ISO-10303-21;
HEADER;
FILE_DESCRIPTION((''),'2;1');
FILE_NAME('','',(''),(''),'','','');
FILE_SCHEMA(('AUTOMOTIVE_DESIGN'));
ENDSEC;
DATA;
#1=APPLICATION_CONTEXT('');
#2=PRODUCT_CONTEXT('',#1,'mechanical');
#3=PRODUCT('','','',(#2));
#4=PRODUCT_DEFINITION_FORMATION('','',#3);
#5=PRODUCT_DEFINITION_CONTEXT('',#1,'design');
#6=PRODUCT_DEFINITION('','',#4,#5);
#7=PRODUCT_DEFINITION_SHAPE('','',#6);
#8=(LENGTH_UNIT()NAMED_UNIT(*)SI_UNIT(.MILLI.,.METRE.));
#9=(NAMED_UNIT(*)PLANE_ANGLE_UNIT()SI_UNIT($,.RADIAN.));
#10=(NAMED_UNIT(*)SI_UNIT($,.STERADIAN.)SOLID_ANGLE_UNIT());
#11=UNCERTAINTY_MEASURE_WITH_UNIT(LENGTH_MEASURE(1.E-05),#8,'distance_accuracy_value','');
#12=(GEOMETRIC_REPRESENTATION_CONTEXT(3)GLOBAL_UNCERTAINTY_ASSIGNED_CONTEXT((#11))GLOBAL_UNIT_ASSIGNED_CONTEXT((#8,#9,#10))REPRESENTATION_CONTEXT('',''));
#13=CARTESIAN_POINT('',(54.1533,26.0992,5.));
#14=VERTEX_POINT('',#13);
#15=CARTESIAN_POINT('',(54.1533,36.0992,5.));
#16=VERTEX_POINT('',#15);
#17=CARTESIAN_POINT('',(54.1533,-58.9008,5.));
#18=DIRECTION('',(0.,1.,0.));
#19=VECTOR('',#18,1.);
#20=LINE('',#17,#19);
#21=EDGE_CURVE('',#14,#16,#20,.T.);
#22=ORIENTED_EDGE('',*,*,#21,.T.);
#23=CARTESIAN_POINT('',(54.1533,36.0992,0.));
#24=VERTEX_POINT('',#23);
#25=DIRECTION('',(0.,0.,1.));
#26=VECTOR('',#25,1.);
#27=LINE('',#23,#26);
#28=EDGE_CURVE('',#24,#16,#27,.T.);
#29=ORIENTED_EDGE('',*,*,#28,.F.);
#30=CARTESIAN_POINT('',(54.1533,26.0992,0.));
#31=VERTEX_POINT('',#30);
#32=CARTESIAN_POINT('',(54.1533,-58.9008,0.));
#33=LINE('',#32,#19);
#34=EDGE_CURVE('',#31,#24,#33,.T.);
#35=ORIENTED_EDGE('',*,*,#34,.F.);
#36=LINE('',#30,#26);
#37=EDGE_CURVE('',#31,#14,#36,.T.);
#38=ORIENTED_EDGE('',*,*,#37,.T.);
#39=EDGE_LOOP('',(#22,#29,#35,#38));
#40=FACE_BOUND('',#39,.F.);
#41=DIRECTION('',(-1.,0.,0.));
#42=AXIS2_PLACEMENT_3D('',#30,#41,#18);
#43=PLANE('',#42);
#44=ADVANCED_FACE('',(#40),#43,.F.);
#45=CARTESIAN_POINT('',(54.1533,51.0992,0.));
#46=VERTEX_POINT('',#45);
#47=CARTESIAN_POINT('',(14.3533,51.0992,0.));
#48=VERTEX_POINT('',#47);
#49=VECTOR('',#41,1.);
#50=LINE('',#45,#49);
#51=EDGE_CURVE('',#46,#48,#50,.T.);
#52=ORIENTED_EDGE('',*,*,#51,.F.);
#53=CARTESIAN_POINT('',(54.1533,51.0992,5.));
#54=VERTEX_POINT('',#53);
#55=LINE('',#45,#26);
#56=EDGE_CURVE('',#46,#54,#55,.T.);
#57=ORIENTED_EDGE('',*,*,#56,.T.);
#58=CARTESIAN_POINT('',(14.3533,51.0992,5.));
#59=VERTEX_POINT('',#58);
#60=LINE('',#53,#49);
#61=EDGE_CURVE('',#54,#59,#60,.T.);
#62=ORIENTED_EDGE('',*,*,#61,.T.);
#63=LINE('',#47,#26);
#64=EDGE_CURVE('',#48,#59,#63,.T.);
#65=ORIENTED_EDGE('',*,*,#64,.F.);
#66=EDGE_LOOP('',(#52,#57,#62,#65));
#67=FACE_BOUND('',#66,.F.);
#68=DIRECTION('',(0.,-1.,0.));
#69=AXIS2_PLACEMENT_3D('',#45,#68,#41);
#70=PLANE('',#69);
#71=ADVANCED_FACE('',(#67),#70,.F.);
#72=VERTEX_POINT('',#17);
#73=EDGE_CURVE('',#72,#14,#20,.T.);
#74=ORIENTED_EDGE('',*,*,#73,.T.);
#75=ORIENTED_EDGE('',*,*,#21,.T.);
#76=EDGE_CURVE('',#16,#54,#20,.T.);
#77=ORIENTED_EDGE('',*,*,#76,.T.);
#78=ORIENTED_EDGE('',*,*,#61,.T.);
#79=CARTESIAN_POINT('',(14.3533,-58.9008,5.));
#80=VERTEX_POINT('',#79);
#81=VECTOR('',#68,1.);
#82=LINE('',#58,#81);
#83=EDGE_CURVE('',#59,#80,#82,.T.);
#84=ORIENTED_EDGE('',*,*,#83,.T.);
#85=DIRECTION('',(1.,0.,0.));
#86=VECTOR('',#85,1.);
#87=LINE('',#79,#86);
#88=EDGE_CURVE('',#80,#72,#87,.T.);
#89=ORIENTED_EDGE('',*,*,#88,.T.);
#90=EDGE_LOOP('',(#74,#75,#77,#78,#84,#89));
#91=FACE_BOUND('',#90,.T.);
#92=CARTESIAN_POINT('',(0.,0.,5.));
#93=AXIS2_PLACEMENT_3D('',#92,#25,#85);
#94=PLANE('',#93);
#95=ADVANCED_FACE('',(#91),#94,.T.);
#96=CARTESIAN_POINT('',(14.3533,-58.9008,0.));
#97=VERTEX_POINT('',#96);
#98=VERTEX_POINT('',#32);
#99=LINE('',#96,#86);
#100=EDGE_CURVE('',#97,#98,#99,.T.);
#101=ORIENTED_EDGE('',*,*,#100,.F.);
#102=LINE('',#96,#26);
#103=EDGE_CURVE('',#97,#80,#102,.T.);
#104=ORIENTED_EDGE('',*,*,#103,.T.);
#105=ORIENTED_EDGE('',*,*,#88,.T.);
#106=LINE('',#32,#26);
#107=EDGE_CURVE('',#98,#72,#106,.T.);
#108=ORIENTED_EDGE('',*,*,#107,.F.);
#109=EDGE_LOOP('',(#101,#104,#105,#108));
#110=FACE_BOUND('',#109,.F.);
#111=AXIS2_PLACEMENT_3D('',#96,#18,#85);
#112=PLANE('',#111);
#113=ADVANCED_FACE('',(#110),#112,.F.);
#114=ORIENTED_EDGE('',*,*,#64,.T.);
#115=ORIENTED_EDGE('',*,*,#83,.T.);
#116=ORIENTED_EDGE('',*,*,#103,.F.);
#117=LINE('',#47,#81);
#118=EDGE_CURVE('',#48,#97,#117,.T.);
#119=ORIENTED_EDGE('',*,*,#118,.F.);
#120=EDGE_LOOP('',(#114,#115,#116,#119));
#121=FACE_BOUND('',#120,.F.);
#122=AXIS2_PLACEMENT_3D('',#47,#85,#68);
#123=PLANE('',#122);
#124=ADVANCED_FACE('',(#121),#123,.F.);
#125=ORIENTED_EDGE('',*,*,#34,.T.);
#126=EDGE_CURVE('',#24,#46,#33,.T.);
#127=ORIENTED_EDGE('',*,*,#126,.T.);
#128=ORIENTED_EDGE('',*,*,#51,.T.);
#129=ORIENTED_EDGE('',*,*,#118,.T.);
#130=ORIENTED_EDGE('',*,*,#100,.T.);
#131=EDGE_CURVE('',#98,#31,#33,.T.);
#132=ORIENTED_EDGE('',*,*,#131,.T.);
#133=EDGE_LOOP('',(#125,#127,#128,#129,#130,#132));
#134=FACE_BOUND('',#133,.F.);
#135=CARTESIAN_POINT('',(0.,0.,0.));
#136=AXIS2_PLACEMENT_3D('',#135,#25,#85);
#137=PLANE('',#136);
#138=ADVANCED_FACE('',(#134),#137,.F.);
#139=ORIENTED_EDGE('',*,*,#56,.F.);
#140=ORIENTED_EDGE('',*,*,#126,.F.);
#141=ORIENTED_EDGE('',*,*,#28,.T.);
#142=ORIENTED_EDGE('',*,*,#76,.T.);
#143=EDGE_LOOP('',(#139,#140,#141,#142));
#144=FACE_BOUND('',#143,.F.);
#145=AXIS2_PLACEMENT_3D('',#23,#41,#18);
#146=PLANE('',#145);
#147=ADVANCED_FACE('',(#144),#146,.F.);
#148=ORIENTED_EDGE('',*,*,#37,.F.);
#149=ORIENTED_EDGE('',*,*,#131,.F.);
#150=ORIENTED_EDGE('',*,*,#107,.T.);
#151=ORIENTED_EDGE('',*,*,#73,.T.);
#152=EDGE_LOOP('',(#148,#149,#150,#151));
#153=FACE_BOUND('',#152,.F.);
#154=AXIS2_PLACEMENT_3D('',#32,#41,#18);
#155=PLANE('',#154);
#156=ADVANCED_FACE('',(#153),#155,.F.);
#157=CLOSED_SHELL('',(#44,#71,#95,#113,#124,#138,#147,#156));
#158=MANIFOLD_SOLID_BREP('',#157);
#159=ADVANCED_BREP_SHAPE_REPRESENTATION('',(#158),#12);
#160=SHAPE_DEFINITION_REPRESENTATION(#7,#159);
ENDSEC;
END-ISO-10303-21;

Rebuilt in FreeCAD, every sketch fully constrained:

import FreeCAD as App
import Part
import Sketcher
from FreeCAD import Vector

doc = App.newDocument("Part")
body = doc.addObject("PartDesign::Body", "Body")

sketch1 = body.newObject("Sketcher::SketchObject", "Sketch")
sketch1.AttachmentSupport = (doc.getObject("XY_Plane"), [""])
sketch1.MapMode = "FlatFace"
sketch1.addGeometry(Part.LineSegment(Vector(14, 51, 0), Vector(14, -59, 0)), False)
sketch1.addGeometry(Part.LineSegment(Vector(14, -59, 0), Vector(54, -59, 0)), False)
sketch1.addGeometry(Part.LineSegment(Vector(54, -59, 0), Vector(54, 51, 0)), False)
sketch1.addGeometry(Part.LineSegment(Vector(54, 51, 0), Vector(14, 51, 0)), False)
sketch1.addConstraint(Sketcher.Constraint("Coincident", 0, 2, 1, 1))
sketch1.addConstraint(Sketcher.Constraint("Coincident", 1, 2, 2, 1))
sketch1.addConstraint(Sketcher.Constraint("Coincident", 2, 2, 3, 1))
sketch1.addConstraint(Sketcher.Constraint("Coincident", 3, 2, 0, 1))
sketch1.addConstraint(Sketcher.Constraint("Vertical", 0))
sketch1.addConstraint(Sketcher.Constraint("Horizontal", 1))
sketch1.addConstraint(Sketcher.Constraint("Vertical", 2))
sketch1.addConstraint(Sketcher.Constraint("Horizontal", 3))
sketch1.addConstraint(Sketcher.Constraint("DistanceY", 0, 2, 0, 1, 110.0))
sketch1.addConstraint(Sketcher.Constraint("DistanceX", 1, 1, 1, 2, 39.8))
sketch1.addConstraint(Sketcher.Constraint("DistanceX", -1, 1, 0, 2, 14.3533))
sketch1.addConstraint(Sketcher.Constraint("DistanceY", 0, 2, -1, 1, 58.9008))
pad1 = body.newObject("PartDesign::Pad", "Pad")
pad1.Profile = sketch1
pad1.Length = 5

doc.recompute()
